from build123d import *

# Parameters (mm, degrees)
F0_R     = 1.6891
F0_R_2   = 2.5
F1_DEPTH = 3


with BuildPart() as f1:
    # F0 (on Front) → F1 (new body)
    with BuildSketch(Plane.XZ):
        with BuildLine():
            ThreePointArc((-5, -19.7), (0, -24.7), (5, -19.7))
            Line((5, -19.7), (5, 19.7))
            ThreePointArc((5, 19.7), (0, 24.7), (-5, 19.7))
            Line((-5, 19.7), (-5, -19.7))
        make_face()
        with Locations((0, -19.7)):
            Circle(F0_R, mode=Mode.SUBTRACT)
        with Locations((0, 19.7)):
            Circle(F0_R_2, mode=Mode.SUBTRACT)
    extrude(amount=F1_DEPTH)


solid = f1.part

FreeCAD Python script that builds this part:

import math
import FreeCAD as App
import Part
import Sketcher
from FreeCAD import Vector

doc = App.newDocument("Part")
params = doc.addObject("Spreadsheet::Sheet", "Params")
for row, (alias, value) in enumerate([
    ("sketch1_diameter", "5 mm"),
    ("sketch1_radius", "5 mm"),
    ("sketch1_height", "39.4 mm"),
    ("pad1_length", "3 mm"),
], start=1):
    params.set(f"A{row}", alias)
    params.set(f"B{row}", "=" + value)
    params.setAlias(f"B{row}", alias)

body = doc.addObject("PartDesign::Body", "Body")

# Sketch on XZ plane
sketch1 = doc.addObject("Sketcher::SketchObject", "Sketch")
body.addObject(sketch1)
sketch1.AttachmentSupport = (doc.XZ_Plane, [""])
sketch1.MapMode = "FlatFace"
sketch1.addGeometry([
    Part.ArcOfCircle(Part.Circle(Vector(0, -19.7, 0), Vector(0, 0, 1), 5), math.radians(180), math.radians(360)),  # 0
    Part.LineSegment(Vector(5, -19.7, 0), Vector(5, 19.7, 0)),  # 1
    Part.ArcOfCircle(Part.Circle(Vector(0, 19.7, 0), Vector(0, 0, 1), 5), math.radians(0), math.radians(180)),  # 2
    Part.LineSegment(Vector(-5, 19.7, 0), Vector(-5, -19.7, 0)),  # 3
    Part.Circle(Vector(0, -19.7, 0), Vector(0, 0, 1), 1.7),  # 4
    Part.Circle(Vector(0, 19.7, 0), Vector(0, 0, 1), 2.5),  # 5
], False)
sketch1.addConstraint([
    Sketcher.Constraint("Tangent", 0, 2, 1, 1),
    Sketcher.Constraint("Tangent", 1, 2, 2, 1),
    Sketcher.Constraint("Tangent", 2, 2, 3, 1),
    Sketcher.Constraint("Tangent", 3, 2, 0, 1),
    Sketcher.Constraint("Vertical", 1),
    Sketcher.Constraint("Vertical", 3),
    Sketcher.Constraint("Coincident", 4, 3, 0, 3),
    Sketcher.Constraint("Coincident", 5, 3, 2, 3),
    Sketcher.Constraint("Symmetric", 0, 3, 2, 3, -1, 1),
    Sketcher.Constraint("Diameter", 5, 5.0),
    Sketcher.Constraint("Radius", 0, 5.0),
    Sketcher.Constraint("DistanceY", 1, 1, 1, 2, 39.4),
    Sketcher.Constraint("Diameter", 4, 3.3782),
])
sketch1.setExpression("Constraints[9]", "Params.sketch1_diameter")
sketch1.setExpression("Constraints[10]", "Params.sketch1_radius")
sketch1.setExpression("Constraints[11]", "Params.sketch1_height")
pad1 = doc.addObject("PartDesign::Pad", "Pad")
body.addObject(pad1)
pad1.Profile = sketch1
pad1.setExpression("Length", "Params.pad1_length")

doc.recompute()
